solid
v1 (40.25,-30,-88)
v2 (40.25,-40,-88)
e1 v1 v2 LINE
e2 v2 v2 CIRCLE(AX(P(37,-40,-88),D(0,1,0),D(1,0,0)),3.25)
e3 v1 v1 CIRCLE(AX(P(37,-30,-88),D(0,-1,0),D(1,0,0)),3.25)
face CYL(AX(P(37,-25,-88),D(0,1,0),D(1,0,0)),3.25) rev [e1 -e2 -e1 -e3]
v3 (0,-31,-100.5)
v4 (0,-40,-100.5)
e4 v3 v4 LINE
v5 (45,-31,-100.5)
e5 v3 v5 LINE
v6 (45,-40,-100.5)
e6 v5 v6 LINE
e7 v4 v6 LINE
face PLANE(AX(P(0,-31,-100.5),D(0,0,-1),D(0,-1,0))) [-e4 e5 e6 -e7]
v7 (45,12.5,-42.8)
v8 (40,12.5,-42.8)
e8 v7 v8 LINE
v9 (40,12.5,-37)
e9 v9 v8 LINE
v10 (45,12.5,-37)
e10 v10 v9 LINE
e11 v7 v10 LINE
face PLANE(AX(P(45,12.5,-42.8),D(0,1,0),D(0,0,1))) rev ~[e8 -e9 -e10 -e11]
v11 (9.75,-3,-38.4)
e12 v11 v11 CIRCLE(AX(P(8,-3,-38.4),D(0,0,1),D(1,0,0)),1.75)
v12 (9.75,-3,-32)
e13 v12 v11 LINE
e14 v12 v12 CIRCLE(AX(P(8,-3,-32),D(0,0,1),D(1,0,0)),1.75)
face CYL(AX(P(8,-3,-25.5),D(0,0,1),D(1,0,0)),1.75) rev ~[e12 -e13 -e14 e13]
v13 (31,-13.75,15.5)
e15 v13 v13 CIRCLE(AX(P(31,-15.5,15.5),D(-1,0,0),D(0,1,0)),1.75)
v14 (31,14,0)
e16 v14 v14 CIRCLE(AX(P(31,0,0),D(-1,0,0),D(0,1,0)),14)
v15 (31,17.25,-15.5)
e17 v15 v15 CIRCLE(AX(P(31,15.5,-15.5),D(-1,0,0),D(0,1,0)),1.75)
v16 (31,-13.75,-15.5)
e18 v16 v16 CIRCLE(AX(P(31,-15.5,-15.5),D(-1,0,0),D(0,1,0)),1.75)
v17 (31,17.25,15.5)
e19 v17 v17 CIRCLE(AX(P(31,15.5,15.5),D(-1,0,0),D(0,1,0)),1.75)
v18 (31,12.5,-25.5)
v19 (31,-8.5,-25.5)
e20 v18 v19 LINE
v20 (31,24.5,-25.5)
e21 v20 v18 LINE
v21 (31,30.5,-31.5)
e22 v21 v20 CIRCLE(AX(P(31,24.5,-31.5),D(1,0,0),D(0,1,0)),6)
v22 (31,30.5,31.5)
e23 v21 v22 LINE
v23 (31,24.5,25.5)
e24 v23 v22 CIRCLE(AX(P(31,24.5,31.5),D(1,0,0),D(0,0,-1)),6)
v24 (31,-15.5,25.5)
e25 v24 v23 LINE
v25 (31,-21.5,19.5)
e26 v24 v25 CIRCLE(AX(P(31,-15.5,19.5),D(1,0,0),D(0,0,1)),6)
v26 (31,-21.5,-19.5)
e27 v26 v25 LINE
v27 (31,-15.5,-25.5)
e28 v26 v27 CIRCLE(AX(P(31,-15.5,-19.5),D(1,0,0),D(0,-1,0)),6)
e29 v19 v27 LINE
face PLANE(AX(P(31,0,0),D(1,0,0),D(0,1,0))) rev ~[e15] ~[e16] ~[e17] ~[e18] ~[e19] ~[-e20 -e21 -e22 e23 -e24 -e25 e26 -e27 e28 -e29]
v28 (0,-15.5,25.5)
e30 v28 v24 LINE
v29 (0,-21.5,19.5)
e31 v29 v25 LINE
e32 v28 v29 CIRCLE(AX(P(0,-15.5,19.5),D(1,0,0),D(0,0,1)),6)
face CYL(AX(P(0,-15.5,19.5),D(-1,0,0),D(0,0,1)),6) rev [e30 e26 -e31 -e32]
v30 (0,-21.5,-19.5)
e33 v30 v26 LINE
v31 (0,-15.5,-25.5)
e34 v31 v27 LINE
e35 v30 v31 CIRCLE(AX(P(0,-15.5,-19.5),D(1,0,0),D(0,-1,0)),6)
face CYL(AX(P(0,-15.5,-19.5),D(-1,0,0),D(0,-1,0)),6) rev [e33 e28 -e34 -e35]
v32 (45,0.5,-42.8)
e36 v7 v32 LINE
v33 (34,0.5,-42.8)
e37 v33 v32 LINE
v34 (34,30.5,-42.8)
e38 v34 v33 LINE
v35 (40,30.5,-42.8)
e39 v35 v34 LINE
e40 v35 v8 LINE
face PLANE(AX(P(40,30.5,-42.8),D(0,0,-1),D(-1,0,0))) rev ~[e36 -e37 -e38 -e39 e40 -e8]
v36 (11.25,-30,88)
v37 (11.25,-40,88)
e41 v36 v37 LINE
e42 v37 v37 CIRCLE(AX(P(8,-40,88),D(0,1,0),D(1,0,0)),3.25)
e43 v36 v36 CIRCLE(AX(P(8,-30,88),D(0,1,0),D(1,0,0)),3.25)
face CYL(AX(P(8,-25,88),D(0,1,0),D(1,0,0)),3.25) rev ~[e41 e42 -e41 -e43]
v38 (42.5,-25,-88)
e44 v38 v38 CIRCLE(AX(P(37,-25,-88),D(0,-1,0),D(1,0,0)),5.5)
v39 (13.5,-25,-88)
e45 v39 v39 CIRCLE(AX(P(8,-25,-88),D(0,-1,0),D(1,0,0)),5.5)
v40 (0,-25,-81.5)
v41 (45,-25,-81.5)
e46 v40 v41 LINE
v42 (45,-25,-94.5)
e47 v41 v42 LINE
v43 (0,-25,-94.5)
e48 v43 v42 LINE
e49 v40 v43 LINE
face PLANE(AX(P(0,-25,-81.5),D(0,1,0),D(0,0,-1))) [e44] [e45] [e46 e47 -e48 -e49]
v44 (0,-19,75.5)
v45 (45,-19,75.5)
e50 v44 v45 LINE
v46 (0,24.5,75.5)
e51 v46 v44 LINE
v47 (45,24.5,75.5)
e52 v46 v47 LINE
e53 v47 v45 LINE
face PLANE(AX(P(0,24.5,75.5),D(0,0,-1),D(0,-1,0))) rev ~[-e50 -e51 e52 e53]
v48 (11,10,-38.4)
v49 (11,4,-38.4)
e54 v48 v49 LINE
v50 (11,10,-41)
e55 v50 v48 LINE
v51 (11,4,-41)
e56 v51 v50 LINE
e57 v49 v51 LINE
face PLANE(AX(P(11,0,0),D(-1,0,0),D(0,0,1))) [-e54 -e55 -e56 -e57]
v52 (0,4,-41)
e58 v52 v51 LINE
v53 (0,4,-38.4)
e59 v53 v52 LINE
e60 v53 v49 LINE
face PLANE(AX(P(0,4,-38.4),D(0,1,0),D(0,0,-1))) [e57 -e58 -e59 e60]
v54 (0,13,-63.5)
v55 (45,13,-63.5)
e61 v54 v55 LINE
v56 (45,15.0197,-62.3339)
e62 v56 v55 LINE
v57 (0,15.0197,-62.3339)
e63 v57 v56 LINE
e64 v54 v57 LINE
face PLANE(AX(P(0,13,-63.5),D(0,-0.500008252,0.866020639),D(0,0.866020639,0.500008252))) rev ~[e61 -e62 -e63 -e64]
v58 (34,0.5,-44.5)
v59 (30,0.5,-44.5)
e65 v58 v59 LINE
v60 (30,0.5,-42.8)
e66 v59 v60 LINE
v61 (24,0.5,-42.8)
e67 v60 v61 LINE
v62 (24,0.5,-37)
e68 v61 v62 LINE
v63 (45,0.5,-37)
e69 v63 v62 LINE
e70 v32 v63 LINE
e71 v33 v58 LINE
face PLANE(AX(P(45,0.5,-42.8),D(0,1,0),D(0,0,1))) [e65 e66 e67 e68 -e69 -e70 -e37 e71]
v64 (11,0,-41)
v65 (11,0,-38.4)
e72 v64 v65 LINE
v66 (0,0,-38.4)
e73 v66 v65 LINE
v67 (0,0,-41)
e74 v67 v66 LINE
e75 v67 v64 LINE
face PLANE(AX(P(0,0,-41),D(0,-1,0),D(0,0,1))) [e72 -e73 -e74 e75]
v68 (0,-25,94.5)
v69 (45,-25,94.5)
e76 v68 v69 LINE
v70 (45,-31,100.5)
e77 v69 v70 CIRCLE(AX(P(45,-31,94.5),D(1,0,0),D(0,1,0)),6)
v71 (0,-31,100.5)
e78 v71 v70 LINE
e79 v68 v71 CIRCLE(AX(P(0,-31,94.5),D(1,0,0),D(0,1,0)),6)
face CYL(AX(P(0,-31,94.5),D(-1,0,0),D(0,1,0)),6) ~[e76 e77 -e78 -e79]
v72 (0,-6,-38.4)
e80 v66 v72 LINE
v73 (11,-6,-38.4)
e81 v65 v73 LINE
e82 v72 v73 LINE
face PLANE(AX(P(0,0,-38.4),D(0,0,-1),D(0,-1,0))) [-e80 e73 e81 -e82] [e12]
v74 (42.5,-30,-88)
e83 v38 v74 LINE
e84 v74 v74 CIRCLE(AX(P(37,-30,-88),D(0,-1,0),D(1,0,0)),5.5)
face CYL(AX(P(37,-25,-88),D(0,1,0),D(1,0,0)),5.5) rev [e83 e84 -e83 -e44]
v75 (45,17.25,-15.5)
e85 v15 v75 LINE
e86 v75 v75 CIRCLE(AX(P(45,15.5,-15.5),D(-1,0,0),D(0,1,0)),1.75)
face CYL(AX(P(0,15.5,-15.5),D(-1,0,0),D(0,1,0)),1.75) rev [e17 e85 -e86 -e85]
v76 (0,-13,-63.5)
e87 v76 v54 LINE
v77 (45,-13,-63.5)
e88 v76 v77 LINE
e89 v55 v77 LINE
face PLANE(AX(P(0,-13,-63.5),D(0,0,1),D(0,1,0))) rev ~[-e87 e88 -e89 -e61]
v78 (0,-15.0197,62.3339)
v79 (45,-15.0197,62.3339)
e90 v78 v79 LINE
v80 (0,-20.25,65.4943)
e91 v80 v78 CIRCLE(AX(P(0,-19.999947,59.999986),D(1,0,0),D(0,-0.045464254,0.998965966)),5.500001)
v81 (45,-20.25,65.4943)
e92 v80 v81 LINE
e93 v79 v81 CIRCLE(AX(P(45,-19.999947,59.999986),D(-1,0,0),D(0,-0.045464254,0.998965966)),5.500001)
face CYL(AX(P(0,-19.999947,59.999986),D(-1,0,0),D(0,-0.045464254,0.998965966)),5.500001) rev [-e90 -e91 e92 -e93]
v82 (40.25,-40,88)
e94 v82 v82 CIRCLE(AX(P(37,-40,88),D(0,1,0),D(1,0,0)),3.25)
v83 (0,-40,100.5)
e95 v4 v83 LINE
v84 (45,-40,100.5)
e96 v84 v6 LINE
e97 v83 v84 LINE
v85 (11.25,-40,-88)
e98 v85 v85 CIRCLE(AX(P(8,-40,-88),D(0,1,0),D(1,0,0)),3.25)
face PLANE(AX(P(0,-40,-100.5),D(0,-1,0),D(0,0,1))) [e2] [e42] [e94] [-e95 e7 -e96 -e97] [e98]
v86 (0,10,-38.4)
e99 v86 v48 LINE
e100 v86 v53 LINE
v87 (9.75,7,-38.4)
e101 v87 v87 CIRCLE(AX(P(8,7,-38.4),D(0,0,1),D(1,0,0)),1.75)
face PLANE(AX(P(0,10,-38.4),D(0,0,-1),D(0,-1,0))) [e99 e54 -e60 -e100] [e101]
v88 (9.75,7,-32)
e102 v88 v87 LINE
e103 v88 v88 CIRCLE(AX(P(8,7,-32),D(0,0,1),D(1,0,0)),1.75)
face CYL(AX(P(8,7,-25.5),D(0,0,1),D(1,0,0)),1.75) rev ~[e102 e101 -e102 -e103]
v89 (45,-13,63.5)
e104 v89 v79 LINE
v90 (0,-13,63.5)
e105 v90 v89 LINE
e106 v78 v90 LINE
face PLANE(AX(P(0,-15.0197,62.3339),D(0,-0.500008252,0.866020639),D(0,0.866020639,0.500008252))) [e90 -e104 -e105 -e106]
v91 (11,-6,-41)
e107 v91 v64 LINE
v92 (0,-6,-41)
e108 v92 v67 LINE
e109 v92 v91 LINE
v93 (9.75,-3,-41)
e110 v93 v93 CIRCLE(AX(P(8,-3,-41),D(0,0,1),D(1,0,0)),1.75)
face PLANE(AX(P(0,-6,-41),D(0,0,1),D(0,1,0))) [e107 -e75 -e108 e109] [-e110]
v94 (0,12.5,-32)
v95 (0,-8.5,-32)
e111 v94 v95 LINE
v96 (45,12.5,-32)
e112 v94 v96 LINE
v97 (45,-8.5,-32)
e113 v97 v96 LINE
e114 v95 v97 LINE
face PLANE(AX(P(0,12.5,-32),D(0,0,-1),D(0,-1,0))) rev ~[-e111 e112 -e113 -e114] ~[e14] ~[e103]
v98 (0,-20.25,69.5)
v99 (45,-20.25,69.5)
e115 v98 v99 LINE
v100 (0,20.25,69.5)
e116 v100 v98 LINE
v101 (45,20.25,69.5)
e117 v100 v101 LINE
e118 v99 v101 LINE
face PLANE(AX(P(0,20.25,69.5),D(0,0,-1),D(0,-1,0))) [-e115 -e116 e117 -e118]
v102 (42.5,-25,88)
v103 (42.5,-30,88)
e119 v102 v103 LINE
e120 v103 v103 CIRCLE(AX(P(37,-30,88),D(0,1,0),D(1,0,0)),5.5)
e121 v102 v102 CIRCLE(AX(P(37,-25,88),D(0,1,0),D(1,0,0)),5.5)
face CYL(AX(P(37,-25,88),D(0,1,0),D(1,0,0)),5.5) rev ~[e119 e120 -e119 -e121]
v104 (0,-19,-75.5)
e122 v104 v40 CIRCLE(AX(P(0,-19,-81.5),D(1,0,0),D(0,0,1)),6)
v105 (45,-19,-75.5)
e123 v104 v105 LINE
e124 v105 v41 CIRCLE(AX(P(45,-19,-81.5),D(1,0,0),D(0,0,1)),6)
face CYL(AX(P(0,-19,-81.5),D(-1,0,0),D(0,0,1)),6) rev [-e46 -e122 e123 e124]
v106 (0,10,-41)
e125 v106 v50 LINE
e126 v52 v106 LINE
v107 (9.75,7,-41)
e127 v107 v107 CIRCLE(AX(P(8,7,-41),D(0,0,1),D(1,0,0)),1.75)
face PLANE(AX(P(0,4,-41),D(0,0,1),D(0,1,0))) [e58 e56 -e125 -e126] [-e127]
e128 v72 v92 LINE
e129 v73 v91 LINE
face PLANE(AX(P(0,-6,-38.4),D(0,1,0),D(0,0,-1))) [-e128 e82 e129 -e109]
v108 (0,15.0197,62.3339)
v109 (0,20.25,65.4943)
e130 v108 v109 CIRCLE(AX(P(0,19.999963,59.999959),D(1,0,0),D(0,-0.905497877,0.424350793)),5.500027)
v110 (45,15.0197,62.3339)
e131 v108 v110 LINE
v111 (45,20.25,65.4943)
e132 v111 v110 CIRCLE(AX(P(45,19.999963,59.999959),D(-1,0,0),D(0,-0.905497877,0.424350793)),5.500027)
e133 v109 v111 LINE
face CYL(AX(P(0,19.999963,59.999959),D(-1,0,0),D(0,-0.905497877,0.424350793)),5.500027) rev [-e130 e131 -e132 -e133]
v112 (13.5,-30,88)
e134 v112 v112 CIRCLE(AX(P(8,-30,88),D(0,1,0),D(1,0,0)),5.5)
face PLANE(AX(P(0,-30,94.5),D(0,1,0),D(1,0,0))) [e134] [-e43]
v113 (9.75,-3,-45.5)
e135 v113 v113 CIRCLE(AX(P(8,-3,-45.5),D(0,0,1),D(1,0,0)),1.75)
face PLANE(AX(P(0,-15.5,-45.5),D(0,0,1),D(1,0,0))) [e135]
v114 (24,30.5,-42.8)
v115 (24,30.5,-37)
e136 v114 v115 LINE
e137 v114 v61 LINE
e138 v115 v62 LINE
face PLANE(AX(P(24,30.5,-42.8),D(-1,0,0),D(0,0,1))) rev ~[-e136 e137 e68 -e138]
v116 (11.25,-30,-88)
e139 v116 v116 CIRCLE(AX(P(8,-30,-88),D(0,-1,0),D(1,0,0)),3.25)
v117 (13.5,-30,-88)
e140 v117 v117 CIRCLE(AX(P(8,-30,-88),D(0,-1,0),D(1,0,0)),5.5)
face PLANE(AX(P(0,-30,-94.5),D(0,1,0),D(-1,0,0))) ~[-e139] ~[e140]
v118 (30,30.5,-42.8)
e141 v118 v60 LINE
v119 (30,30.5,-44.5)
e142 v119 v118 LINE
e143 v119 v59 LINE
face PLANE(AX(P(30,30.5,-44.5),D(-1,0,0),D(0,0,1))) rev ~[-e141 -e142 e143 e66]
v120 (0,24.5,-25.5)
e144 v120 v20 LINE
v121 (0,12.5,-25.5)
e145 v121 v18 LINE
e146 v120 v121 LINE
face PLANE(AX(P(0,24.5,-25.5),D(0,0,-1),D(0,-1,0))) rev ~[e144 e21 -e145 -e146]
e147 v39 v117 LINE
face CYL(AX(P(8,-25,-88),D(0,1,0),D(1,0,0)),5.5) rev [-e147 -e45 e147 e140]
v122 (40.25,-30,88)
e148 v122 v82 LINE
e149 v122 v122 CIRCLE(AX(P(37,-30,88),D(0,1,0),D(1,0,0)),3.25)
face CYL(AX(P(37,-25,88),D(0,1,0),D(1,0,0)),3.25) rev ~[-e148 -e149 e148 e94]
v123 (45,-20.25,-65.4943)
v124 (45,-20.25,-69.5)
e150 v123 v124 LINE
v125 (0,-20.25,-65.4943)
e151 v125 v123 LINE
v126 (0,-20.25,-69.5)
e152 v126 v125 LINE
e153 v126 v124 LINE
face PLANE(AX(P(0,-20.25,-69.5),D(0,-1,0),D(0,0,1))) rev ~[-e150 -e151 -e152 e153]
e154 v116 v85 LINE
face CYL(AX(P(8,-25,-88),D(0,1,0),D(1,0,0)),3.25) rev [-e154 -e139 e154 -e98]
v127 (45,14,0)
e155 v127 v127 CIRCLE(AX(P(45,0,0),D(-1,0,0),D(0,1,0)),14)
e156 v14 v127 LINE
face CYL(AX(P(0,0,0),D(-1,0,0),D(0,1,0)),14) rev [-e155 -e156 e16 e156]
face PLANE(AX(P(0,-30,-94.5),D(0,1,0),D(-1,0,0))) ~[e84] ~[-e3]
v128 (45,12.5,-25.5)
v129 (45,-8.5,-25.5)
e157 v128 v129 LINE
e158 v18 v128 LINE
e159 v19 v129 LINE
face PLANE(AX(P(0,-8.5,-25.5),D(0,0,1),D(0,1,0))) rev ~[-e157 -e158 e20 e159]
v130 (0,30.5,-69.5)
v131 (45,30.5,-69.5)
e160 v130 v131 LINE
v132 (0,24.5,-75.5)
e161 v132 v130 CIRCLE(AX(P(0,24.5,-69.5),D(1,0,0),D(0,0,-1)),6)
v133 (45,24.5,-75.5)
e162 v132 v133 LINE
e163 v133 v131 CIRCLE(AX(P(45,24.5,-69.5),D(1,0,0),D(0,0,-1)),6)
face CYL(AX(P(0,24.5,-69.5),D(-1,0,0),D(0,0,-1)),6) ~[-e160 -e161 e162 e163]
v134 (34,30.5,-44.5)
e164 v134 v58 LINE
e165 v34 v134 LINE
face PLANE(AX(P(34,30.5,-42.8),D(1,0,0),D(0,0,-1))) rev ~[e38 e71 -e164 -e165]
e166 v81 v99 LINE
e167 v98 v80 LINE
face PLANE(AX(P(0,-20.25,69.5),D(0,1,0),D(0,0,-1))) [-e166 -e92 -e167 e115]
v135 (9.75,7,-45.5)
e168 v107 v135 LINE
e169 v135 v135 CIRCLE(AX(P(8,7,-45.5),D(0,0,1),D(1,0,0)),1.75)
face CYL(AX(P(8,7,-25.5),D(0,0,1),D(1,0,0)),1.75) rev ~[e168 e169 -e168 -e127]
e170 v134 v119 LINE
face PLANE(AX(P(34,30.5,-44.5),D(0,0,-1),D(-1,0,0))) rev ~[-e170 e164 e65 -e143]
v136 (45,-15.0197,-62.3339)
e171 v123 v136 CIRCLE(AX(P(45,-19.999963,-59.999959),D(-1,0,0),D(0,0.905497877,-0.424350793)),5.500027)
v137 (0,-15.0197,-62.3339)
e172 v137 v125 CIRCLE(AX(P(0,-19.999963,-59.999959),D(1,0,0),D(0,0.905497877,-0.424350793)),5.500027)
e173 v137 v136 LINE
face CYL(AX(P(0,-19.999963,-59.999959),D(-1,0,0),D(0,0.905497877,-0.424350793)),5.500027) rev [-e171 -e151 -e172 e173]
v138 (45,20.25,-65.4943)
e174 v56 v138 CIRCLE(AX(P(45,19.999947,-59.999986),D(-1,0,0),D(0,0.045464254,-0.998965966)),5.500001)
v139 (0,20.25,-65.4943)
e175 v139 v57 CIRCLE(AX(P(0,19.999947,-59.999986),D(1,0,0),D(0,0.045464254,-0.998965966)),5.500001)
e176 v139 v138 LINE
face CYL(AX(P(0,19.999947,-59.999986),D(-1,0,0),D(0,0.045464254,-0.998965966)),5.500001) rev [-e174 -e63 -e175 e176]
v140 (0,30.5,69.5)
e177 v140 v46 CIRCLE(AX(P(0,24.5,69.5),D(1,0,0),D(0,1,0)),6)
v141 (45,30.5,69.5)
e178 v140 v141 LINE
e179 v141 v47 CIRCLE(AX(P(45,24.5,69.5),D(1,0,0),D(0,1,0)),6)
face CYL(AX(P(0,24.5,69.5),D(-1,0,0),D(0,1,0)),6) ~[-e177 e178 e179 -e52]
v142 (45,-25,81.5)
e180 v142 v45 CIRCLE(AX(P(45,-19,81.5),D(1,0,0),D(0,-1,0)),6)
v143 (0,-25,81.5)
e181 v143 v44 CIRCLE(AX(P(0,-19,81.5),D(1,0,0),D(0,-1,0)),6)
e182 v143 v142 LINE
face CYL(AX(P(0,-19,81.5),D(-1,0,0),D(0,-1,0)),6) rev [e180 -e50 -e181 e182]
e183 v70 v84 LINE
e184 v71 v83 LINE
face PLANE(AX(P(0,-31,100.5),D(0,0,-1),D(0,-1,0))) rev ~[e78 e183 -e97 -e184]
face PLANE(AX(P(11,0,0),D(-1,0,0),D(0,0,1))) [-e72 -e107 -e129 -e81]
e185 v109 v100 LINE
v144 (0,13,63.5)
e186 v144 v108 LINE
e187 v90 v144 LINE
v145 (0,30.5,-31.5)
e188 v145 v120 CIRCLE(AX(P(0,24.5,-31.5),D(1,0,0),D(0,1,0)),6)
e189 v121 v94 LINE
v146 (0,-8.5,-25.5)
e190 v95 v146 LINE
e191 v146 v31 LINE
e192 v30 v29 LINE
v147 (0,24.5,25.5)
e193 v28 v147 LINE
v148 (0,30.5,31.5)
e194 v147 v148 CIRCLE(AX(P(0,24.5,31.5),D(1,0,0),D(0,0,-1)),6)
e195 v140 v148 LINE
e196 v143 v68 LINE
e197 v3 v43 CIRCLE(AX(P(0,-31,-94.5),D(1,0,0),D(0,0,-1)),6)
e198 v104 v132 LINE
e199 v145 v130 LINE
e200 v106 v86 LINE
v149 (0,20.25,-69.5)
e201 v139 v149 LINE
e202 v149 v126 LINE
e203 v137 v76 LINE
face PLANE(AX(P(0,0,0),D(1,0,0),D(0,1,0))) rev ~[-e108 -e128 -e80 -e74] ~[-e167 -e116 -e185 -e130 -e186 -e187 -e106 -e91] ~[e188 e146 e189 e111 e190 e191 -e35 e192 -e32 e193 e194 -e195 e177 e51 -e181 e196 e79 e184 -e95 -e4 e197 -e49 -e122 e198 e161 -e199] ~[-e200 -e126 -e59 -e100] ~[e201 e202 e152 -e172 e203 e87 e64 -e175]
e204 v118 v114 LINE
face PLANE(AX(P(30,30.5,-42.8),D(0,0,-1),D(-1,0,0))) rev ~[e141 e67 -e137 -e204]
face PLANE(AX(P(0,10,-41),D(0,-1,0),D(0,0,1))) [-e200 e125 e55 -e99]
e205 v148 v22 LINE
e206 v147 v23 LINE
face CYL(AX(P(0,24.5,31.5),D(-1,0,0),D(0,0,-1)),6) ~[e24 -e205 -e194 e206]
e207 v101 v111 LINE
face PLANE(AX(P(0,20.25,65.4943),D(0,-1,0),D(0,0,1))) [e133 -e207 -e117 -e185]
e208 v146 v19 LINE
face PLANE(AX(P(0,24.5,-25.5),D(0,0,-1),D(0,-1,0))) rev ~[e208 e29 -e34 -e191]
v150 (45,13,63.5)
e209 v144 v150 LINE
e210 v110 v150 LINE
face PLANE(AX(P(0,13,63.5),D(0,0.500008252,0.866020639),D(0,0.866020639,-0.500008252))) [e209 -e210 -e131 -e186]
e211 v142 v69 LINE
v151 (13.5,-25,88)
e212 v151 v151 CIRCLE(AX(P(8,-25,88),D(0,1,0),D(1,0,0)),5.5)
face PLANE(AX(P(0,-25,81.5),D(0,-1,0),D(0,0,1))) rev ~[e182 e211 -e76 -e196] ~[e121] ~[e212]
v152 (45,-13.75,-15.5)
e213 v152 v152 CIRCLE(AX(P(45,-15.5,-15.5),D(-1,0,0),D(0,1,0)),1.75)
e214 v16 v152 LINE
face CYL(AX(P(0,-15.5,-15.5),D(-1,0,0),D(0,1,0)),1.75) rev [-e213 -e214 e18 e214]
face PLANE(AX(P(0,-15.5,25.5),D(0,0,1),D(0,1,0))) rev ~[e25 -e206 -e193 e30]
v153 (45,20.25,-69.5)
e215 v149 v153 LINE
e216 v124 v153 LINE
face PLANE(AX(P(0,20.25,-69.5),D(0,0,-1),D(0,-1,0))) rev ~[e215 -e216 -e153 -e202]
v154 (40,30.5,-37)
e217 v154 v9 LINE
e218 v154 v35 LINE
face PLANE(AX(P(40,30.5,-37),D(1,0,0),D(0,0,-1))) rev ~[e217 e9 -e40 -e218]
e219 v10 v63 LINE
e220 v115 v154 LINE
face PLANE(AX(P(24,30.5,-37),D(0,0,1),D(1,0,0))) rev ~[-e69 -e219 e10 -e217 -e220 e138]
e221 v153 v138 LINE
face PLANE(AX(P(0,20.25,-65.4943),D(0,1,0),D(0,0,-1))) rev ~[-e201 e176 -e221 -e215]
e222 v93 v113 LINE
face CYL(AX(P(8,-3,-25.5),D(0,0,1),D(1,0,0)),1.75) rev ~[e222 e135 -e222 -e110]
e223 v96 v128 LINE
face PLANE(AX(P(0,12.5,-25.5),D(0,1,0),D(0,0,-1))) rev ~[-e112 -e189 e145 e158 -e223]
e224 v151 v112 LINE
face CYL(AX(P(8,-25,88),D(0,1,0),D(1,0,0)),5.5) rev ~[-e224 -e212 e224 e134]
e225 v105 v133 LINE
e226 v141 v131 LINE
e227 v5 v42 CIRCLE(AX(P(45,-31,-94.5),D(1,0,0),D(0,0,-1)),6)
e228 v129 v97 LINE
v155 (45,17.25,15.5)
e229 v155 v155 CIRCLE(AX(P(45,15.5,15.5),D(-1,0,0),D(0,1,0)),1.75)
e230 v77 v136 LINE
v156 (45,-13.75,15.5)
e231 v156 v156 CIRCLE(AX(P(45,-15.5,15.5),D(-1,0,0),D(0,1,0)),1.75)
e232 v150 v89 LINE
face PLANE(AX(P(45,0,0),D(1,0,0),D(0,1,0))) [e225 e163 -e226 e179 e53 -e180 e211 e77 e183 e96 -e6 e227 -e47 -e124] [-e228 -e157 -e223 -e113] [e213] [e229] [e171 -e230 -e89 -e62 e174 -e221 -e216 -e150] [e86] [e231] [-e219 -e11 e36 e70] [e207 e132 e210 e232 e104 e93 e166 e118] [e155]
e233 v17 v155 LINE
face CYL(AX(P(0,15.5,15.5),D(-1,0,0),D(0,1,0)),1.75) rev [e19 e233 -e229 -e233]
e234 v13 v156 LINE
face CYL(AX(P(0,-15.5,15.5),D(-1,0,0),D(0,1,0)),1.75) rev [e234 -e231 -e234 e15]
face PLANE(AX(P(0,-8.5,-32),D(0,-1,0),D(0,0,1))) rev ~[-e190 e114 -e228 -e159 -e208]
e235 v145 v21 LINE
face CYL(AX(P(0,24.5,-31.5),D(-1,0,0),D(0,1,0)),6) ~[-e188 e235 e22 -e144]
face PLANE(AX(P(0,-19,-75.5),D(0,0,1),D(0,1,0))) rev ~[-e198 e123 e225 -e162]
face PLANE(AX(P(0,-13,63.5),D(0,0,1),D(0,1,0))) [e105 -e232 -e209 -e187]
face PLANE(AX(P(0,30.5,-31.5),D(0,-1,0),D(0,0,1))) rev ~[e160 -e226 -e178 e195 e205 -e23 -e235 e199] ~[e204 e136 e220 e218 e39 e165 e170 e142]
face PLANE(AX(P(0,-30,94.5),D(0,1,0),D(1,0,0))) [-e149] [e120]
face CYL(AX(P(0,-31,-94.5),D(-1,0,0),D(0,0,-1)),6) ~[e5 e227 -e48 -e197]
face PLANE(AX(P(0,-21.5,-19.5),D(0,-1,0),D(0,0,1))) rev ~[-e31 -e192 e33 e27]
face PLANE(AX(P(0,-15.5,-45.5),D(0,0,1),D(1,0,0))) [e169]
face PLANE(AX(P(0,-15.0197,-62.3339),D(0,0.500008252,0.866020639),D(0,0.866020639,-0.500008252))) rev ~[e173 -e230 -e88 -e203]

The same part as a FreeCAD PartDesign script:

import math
import FreeCAD as App
import Part
import Sketcher
from FreeCAD import Vector
Q = App.Units.Quantity


def add_polygon(sketch, points):
    """Adds a closed chain of lines whose ends are joined by coincident constraints."""
    first, n = sketch.GeometryCount, len(points)
    for a, b in zip(points, points[1:] + points[:1]):
        sketch.addGeometry(Part.LineSegment(App.Vector(*a, 0), App.Vector(*b, 0)), False)
    for i in range(n):
        sketch.addConstraint(Sketcher.Constraint("Coincident", first + i, 2, first + (i + 1) % n, 1))

doc = App.newDocument("Part")
body = doc.addObject("PartDesign::Body", "Body")

# Sketch on YZ plane
sketch1 = body.newObject("Sketcher::SketchObject", "Sketch")
sketch1.AttachmentSupport = (doc.getObject("YZ_Plane"), [""])
sketch1.MapMode = "FlatFace"
sketch1.addGeometry([
    Part.ArcOfCircle(Part.Circle(Vector(24, 70, 0), Vector(0, 0, 1), 6), math.radians(0), math.radians(90)),  # 0
    Part.LineSegment(Vector(24, 76, 0), Vector(-19, 76, 0)),  # 1
    Part.ArcOfCircle(Part.Circle(Vector(-19, 82, 0), Vector(0, 0, 1), 6), math.radians(180), math.radians(270)),  # 2
    Part.LineSegment(Vector(-25, 82, 0), Vector(-25, 94, 0)),  # 3
    Part.ArcOfCircle(Part.Circle(Vector(-31, 94, 0), Vector(0, 0, 1), 6), math.radians(0), math.radians(90)),  # 4
    Part.LineSegment(Vector(-31, 100, 0), Vector(-40, 100, 0)),  # 5
    Part.LineSegment(Vector(-40, 100, 0), Vector(-40, -100, 0)),  # 6
    Part.LineSegment(Vector(-40, -100, 0), Vector(-31, -100, 0)),  # 7
    Part.ArcOfCircle(Part.Circle(Vector(-31, -94, 0), Vector(0, 0, 1), 6), math.radians(-90), math.radians(0)),  # 8
    Part.LineSegment(Vector(-25, -94, 0), Vector(-25, -82, 0)),  # 9
    Part.ArcOfCircle(Part.Circle(Vector(-19, -82, 0), Vector(0, 0, 1), 6), math.radians(90), math.radians(180)),  # 10
    Part.LineSegment(Vector(-19, -76, 0), Vector(24, -76, 0)),  # 11
    Part.ArcOfCircle(Part.Circle(Vector(24, -70, 0), Vector(0, 0, 1), 6), math.radians(-90), math.radians(0)),  # 12
    Part.LineSegment(Vector(30, -70, 0), Vector(30, 70, 0)),  # 13
], False)
sketch1.addConstraint([
    Sketcher.Constraint("Tangent", 0, 2, 1, 1),
    Sketcher.Constraint("Tangent", 1, 2, 2, 2),
    Sketcher.Constraint("Tangent", 2, 1, 3, 1),
    Sketcher.Constraint("Tangent", 3, 2, 4, 1),
    Sketcher.Constraint("Tangent", 4, 2, 5, 1),
    Sketcher.Constraint("Coincident", 5, 2, 6, 1),
    Sketcher.Constraint("Coincident", 6, 2, 7, 1),
    Sketcher.Constraint("Tangent", 7, 2, 8, 1),
    Sketcher.Constraint("Tangent", 8, 2, 9, 1),
    Sketcher.Constraint("Tangent", 9, 2, 10, 2),
    Sketcher.Constraint("Tangent", 10, 1, 11, 1),
    Sketcher.Constraint("Tangent", 11, 2, 12, 1),
    Sketcher.Constraint("Tangent", 12, 2, 13, 1),
    Sketcher.Constraint("Tangent", 13, 2, 0, 1),
    Sketcher.Constraint("Horizontal", 1),
    Sketcher.Constraint("Vertical", 3),
    Sketcher.Constraint("Horizontal", 5),
    Sketcher.Constraint("Vertical", 6),
    Sketcher.Constraint("Horizontal", 7),
    Sketcher.Constraint("Vertical", 9),
    Sketcher.Constraint("Horizontal", 11),
    Sketcher.Constraint("Vertical", 13),
    Sketcher.Constraint("Equal", 0, 2),
    Sketcher.Constraint("Equal", 2, 4),
    Sketcher.Constraint("Equal", 4, 8),
    Sketcher.Constraint("Equal", 8, 10),
    Sketcher.Constraint("Equal", 10, 12),
    Sketcher.Constraint("Symmetric", 4, 3, 8, 3, -1),
    Sketcher.Constraint("Equal", 3, 9),
    Sketcher.Constraint("Radius", 0, Q("6 mm")),
    Sketcher.Constraint("DistanceY", 3, 1, 3, 2, Q("13 mm")),
    Sketcher.Constraint("DistanceX", 4, 3, -1, 1, Q("31 mm")),
    Sketcher.Constraint("DistanceX", 5, 2, -1, 1, Q("40 mm")),
    Sketcher.Constraint("DistanceY", 6, 2, 6, 1, Q("201 mm")),
    Sketcher.Constraint("DistanceX", 1, 2, 1, 1, Q("43.5 mm")),
])
pad1 = body.newObject("PartDesign::Pad", "Pad")
pad1.Profile = sketch1
pad1.Length = 45

# Sketch on YZ plane
sketch2 = body.newObject("Sketcher::SketchObject", "Sketch001")
sketch2.AttachmentSupport = (doc.getObject("YZ_Plane"), [""])
sketch2.MapMode = "FlatFace"
sketch2.addGeometry([
    Part.LineSegment(Vector(30, -32, 0), Vector(30, 32, 0)),  # 0
    Part.ArcOfCircle(Part.Circle(Vector(24, 32, 0), Vector(0, 0, 1), 6), math.radians(-90), math.radians(0)),  # 1
    Part.LineSegment(Vector(24, 26, 0), Vector(-16, 26, 0)),  # 2
    Part.ArcOfCircle(Part.Circle(Vector(-16, 20, 0), Vector(0, 0, 1), 6), math.radians(90), math.radians(180)),  # 3
    Part.LineSegment(Vector(-22, 20, 0), Vector(-22, -20, 0)),  # 4
    Part.ArcOfCircle(Part.Circle(Vector(-16, -20, 0), Vector(0, 0, 1), 6), math.radians(180), math.radians(270)),  # 5
    Part.LineSegment(Vector(-16, -26, 0), Vector(24, -26, 0)),  # 6
    Part.ArcOfCircle(Part.Circle(Vector(24, -32, 0), Vector(0, 0, 1), 6), math.radians(0), math.radians(90)),  # 7
], False)
sketch2.addConstraint([
    Sketcher.Constraint("Tangent", 0, 2, 1, 2),
    Sketcher.Constraint("Tangent", 1, 1, 2, 1),
    Sketcher.Constraint("Tangent", 2, 2, 3, 1),
    Sketcher.Constraint("Tangent", 3, 2, 4, 1),
    Sketcher.Constraint("Tangent", 4, 2, 5, 1),
    Sketcher.Constraint("Tangent", 5, 2, 6, 1),
    Sketcher.Constraint("Tangent", 6, 2, 7, 2),
    Sketcher.Constraint("Tangent", 7, 1, 0, 1),
    Sketcher.Constraint("Vertical", 0),
    Sketcher.Constraint("Horizontal", 2),
    Sketcher.Constraint("Vertical", 4),
    Sketcher.Constraint("Horizontal", 6),
    Sketcher.Constraint("Equal", 1, 3),
    Sketcher.Constraint("Equal", 3, 5),
    Sketcher.Constraint("Equal", 5, 7),
    Sketcher.Constraint("Radius", 1, Q("6 mm")),
    Sketcher.Constraint("DistanceX", 2, 2, 2, 1, Q("40 mm")),
    Sketcher.Constraint("DistanceY", 0, 1, 0, 2, Q("63 mm")),
    Sketcher.Constraint("DistanceX", -1, 1, 1, 3, Q("24.5 mm")),
    Sketcher.Constraint("DistanceY", -1, 1, 1, 3, Q("31.5 mm")),
])
pocket1 = body.newObject("PartDesign::Pocket", "Pocket")
pocket1.Profile = sketch2
pocket1.Length = 31
pocket1.Reversed = True

# Sketch on YZ plane
sketch3 = body.newObject("Sketcher::SketchObject", "Sketch002")
sketch3.AttachmentSupport = (doc.getObject("YZ_Plane"), [""])
sketch3.MapMode = "FlatFace"
sketch3.addGeometry([
    Part.LineSegment(Vector(-20.2, 69.5, 0), Vector(-20.2, 65.5, 0)),  # 0
    Part.ArcOfCircle(Part.Circle(Vector(-20, 60, 0), Vector(0, 0, 1), 5.5), math.radians(93), math.radians(385)),  # 1
    Part.LineSegment(Vector(-15, 62.3, 0), Vector(-13, 63.5, 0)),  # 2
    Part.LineSegment(Vector(-13, 63.5, 0), Vector(13, 63.5, 0)),  # 3
    Part.LineSegment(Vector(13, 63.5, 0), Vector(15, 62.3, 0)),  # 4
    Part.ArcOfCircle(Part.Circle(Vector(20, 60, 0), Vector(0, 0, 1), 5.5), math.radians(155), math.radians(447)),  # 5
    Part.LineSegment(Vector(20.2, 65.5, 0), Vector(20.2, 69.5, 0)),  # 6
    Part.LineSegment(Vector(20.2, 69.5, 0), Vector(-20.2, 69.5, 0)),  # 7
    Part.LineSegment(Vector(-13, -63.5, 0), Vector(-15, -62.3, 0)),  # 8
    Part.ArcOfCircle(Part.Circle(Vector(-20, -60, 0), Vector(0, 0, 1), 5.5), math.radians(-25), math.radians(267)),  # 9
    Part.LineSegment(Vector(-20.2, -65.5, 0), Vector(-20.2, -69.5, 0)),  # 10
    Part.LineSegment(Vector(-20.2, -69.5, 0), Vector(20.2, -69.5, 0)),  # 11
    Part.LineSegment(Vector(20.2, -69.5, 0), Vector(20.2, -65.5, 0)),  # 12
    Part.ArcOfCircle(Part.Circle(Vector(20, -60, 0), Vector(0, 0, 1), 5.5), math.radians(-87), math.radians(205)),  # 13
    Part.LineSegment(Vector(15, -62.3, 0), Vector(13, -63.5, 0)),  # 14
    Part.LineSegment(Vector(13, -63.5, 0), Vector(-13, -63.5, 0)),  # 15
], False)
sketch3.addConstraint([
    Sketcher.Constraint("Coincident", 0, 2, 1, 1),
    Sketcher.Constraint("Coincident", 1, 2, 2, 1),
    Sketcher.Constraint("Coincident", 2, 2, 3, 1),
    Sketcher.Constraint("Coincident", 3, 2, 4, 1),
    Sketcher.Constraint("Coincident", 4, 2, 5, 1),
    Sketcher.Constraint("Coincident", 5, 2, 6, 1),
    Sketcher.Constraint("Coincident", 6, 2, 7, 1),
    Sketcher.Constraint("Coincident", 7, 2, 0, 1),
    Sketcher.Constraint("Coincident", 8, 2, 9, 1),
    Sketcher.Constraint("Coincident", 9, 2, 10, 1),
    Sketcher.Constraint("Coincident", 10, 2, 11, 1),
    Sketcher.Constraint("Coincident", 11, 2, 12, 1),
    Sketcher.Constraint("Coincident", 12, 2, 13, 1),
    Sketcher.Constraint("Coincident", 13, 2, 14, 1),
    Sketcher.Constraint("Coincident", 14, 2, 15, 1),
    Sketcher.Constraint("Coincident", 15, 2, 8, 1),
    Sketcher.Constraint("Vertical", 0),
    Sketcher.Constraint("Horizontal", 3),
    Sketcher.Constraint("Vertical", 6),
    Sketcher.Constraint("Horizontal", 7),
    Sketcher.Constraint("Vertical", 10),
    Sketcher.Constraint("Horizontal", 11),
    Sketcher.Constraint("Vertical", 12),
    Sketcher.Constraint("Horizontal", 15),
    Sketcher.Constraint("Equal", 1, 5),
    Sketcher.Constraint("Equal", 5, 9),
    Sketcher.Constraint("Equal", 9, 13),
    Sketcher.Constraint("Symmetric", 5, 3, 9, 3, -1, 1),
    Sketcher.Constraint("Symmetric", 1, 3, 13, 3, -1, 1),
    Sketcher.Constraint("Symmetric", 6, 2, 10, 2, -1, 1),
    Sketcher.Constraint("Symmetric", 2, 2, 14, 2, -1, 1),
    Sketcher.Constraint("Symmetric", 1, 3, 5, 3, -2),
    Sketcher.Constraint("Parallel", 4, 8),
    Sketcher.Constraint("Parallel", 2, 14),
    Sketcher.Constraint("Horizontal", 1, 2, 4, 2),
    Sketcher.Constraint("Horizontal", 0, 2, 5, 2),
    Sketcher.Constraint("Horizontal", 9, 2, 12, 2),
    Sketcher.Constraint("Horizontal", 8, 2, 13, 2),
    Sketcher.Constraint("Vertical", 3, 2, 14, 2),
    Sketcher.Constraint("Radius", 1, Q("5.5 mm")),
    Sketcher.Constraint("DistanceX", 3, 1, 3, 2, Q("26 mm")),
    Sketcher.Constraint("Angle", 8, Q("149.9995 deg")),
    Sketcher.Constraint("DistanceX", 1, 3, -1, 1, Q("20 mm")),
    Sketcher.Constraint("DistanceY", -1, 1, 1, 3, Q("60 mm")),
    Sketcher.Constraint("DistanceY", 3, 2, 6, 2, Q("6 mm")),
    Sketcher.Constraint("DistanceY", 1, 3, 2, 2, Q("3.5 mm")),
    Sketcher.Constraint("DistanceX", 0, 2, 1, 3, Q("0.25 mm")),
])
pocket2 = body.newObject("PartDesign::Pocket", "Pocket001")
pocket2.Profile = sketch3
pocket2.Type = "ThroughAll"
pocket2.Reversed = True

# Sketch on YZ plane
sketch4 = body.newObject("Sketcher::SketchObject", "Sketch003")
sketch4.AttachmentSupport = (doc.getObject("YZ_Plane"), [""])
sketch4.MapMode = "FlatFace"
sketch4.addGeometry([
    Part.Circle(Vector(0, 0, 0), Vector(0, 0, 1), 14),  # 0
    Part.Circle(Vector(15.5, 15.5, 0), Vector(0, 0, 1), 1.8),  # 1
    Part.Circle(Vector(15.5, -15.5, 0), Vector(0, 0, 1), 1.8),  # 2
    Part.Circle(Vector(-15.5, 15.5, 0), Vector(0, 0, 1), 1.8),  # 3
    Part.Circle(Vector(-15.5, -15.5, 0), Vector(0, 0, 1), 1.8),  # 4
], False)
sketch4.addConstraint([
    Sketcher.Constraint("Coincident", 0, 3, -1, 1),
    Sketcher.Constraint("Equal", 1, 2),
    Sketcher.Constraint("Equal", 2, 3),
    Sketcher.Constraint("Equal", 3, 4),
    Sketcher.Constraint("Symmetric", 2, 3, 3, 3, -1, 1),
    Sketcher.Constraint("Symmetric", 1, 3, 4, 3, -1, 1),
    Sketcher.Constraint("Symmetric", 1, 3, 3, 3, -2),
    Sketcher.Constraint("Diameter", 0, Q("28 mm")),
    Sketcher.Constraint("Diameter", 1, Q("3.5 mm")),
    Sketcher.Constraint("DistanceY", 2, 3, 1, 3, Q("31 mm")),
    Sketcher.Constraint("DistanceX", 3, 3, 1, 3, Q("31 mm")),
])
pocket3 = body.newObject("PartDesign::Pocket", "Pocket002")
pocket3.Profile = sketch4
pocket3.Type = "ThroughAll"
pocket3.Reversed = True

# Sketch on XZ plane
sketch5 = body.newObject("Sketcher::SketchObject", "Sketch004")
sketch5.AttachmentSupport = (doc.getObject("XZ_Plane"), [""])
sketch5.MapMode = "FlatFace"
sketch5.AttachmentOffset = App.Placement(Vector(0, 0, 25), App.Rotation())
sketch5.addGeometry([
    Part.Circle(Vector(37, 88, 0), Vector(0, 0, 1), 3.2),
    Part.Circle(Vector(8, 88, 0), Vector(0, 0, 1), 3.2),
], False)
sketch5.addConstraint([
    Sketcher.Constraint("Equal", 0, 1),
    Sketcher.Constraint("Horizontal", 0, 3, 1, 3),
    Sketcher.Constraint("Diameter", 0, Q("6.5 mm")),
    Sketcher.Constraint("DistanceX", -1, 1, 1, 3, Q("8 mm")),
    Sketcher.Constraint("DistanceX", -1, 1, 0, 3, Q("37 mm")),
    Sketcher.Constraint("DistanceY", -1, 1, 0, 3, Q("88 mm")),
])
pocket4 = body.newObject("PartDesign::Pocket", "Pocket003")
pocket4.Profile = sketch5
pocket4.Type = "ThroughAll"
pocket4.Reversed = True

# Sketch on XZ plane
sketch6 = body.newObject("Sketcher::SketchObject", "Sketch005")
sketch6.AttachmentSupport = (doc.getObject("XZ_Plane"), [""])
sketch6.MapMode = "FlatFace"
sketch6.AttachmentOffset = App.Placement(Vector(0, 0, 25), App.Rotation())
sketch6.addGeometry([
    Part.Circle(Vector(37, 88, 0), Vector(0, 0, 1), 5.5),
    Part.Circle(Vector(37, 88, 0), Vector(0, 0, 1), 3.2),
    Part.Circle(Vector(8, 88, 0), Vector(0, 0, 1), 5.5),
    Part.Circle(Vector(8, 88, 0), Vector(0, 0, 1), 3.2),
], False)
sketch6.addConstraint([
    Sketcher.Constraint("Coincident", 1, 3, 0, 3),
    Sketcher.Constraint("Coincident", 3, 3, 2, 3),
    Sketcher.Constraint("Equal", 0, 2),
    Sketcher.Constraint("Equal", 1, 3),
    Sketcher.Constraint("Horizontal", 1, 3, 2, 3),
    Sketcher.Constraint("Diameter", 0, Q("11 mm")),
    Sketcher.Constraint("Diameter", 1, Q("6.5 mm")),
    Sketcher.Constraint("DistanceX", -1, 1, 2, 3, Q("8 mm")),
    Sketcher.Constraint("DistanceX", -1, 1, 0, 3, Q("37 mm")),
    Sketcher.Constraint("DistanceY", -1, 1, 0, 3, Q("88 mm")),
])
pocket5 = body.newObject("PartDesign::Pocket", "Pocket004")
pocket5.Profile = sketch6
pocket5.Length = 5
pocket5.Reversed = True
doc.recompute()

mirrored = body.newObject("PartDesign::Mirrored", "Mirrored")
mirrored.Originals = [pocket5, pocket4]
mirrored.MirrorPlane = (doc.getObject("XY_Plane"), [""])
body.Tip = mirrored

# Sketch on XY plane
sketch7 = body.newObject("Sketcher::SketchObject", "Sketch006")
sketch7.AttachmentSupport = (doc.getObject("XY_Plane"), [""])
sketch7.MapMode = "FlatFace"
sketch7.AttachmentOffset = App.Placement(Vector(0, 0, -25.5), App.Rotation())
sketch7.addGeometry([
    Part.Circle(Vector(8, 7, 0), Vector(0, 0, 1), 1.8),
    Part.Circle(Vector(8, -3, 0), Vector(0, 0, 1), 1.8),
], False)
sketch7.addConstraint([
    Sketcher.Constraint("Equal", 0, 1),
    Sketcher.Constraint("Vertical", 0, 3, 1, 3),
    Sketcher.Constraint("Diameter", 0, Q("3.5 mm")),
    Sketcher.Constraint("DistanceX", -1, 1, 0, 3, Q("8 mm")),
    Sketcher.Constraint("DistanceY", 1, 3, 0, 3, Q("10 mm")),
    Sketcher.Constraint("DistanceY", -1, 1, 0, 3, Q("7 mm")),
])
pocket6 = body.newObject("PartDesign::Pocket", "Pocket005")
pocket6.Profile = sketch7
pocket6.Length = 20

# Sketch on YZ plane
sketch8 = body.newObject("Sketcher::SketchObject", "Sketch007")
sketch8.AttachmentSupport = (doc.getObject("YZ_Plane"), [""])
sketch8.MapMode = "FlatFace"
add_polygon(sketch8, [(-8, -32), (-8, -26), (12, -26), (12, -32)])  # lines 0-3
sketch8.addConstraint([
    Sketcher.Constraint("Vertical", 0),
    Sketcher.Constraint("Horizontal", 1),
    Sketcher.Constraint("Vertical", 2),
    Sketcher.Constraint("Horizontal", 3),
    Sketcher.Constraint("DistanceX", 1, 1, 1, 2, Q("21 mm")),
    Sketcher.Constraint("DistanceY", 0, 1, 0, 2, Q("6.5 mm")),
    Sketcher.Constraint("DistanceY", 2, 2, -1, 1, Q("32 mm")),
    Sketcher.Constraint("DistanceX", 0, 2, -1, 1, Q("8.5 mm")),
])
pocket7 = body.newObject("PartDesign::Pocket", "Pocket006")
pocket7.Profile = sketch8
pocket7.Type = "ThroughAll"
pocket7.Reversed = True

# Sketch on YZ plane
sketch9 = body.newObject("Sketcher::SketchObject", "Sketch008")
sketch9.AttachmentSupport = (doc.getObject("YZ_Plane"), [""])
sketch9.MapMode = "FlatFace"
add_polygon(sketch9, [(10, -38.4), (10, -41), (4, -41), (4, -38.4)])  # lines 0-3
add_polygon(sketch9, [(0, -38.4), (0, -41), (-6, -41), (-6, -38.4)])  # lines 4-7
sketch9.addConstraint([
    Sketcher.Constraint("Vertical", 0),
    Sketcher.Constraint("Horizontal", 1),
    Sketcher.Constraint("Vertical", 2),
    Sketcher.Constraint("Horizontal", 3),
    Sketcher.Constraint("Vertical", 4),
    Sketcher.Constraint("Horizontal", 5),
    Sketcher.Constraint("Vertical", 6),
    Sketcher.Constraint("Horizontal", 7),
    Sketcher.Constraint("PointOnObject", 4, 2, -2),
    Sketcher.Constraint("Horizontal", 1, 2, 4, 2),
    Sketcher.Constraint("Horizontal", 3, 2, 6, 2),
    Sketcher.Constraint("Equal", 3, 5),
    Sketcher.Constraint("DistanceX", 1, 2, 1, 1, Q("6 mm")),
    Sketcher.Constraint("DistanceY", 0, 2, 0, 1, Q("2.6 mm")),
    Sketcher.Constraint("DistanceX", -1, 1, 0, 2, Q("10 mm")),
    Sketcher.Constraint("DistanceY", 0, 2, -1, 1, Q("41 mm")),
])
pocket8 = body.newObject("PartDesign::Pocket", "Pocket007")
pocket8.Profile = sketch9
pocket8.Length = 11
pocket8.Reversed = True

# Sketch on XZ plane
sketch10 = body.newObject("Sketcher::SketchObject", "Sketch009")
sketch10.AttachmentSupport = (doc.getObject("XZ_Plane"), [""])
sketch10.MapMode = "FlatFace"
sketch10.AttachmentOffset = App.Placement(Vector(0, 0, -30.5), App.Rotation())
add_polygon(sketch10, [(24, -42.8), (24, -37), (40, -37), (40, -42.8), (34, -42.8), (34, -44.5), (30, -44.5), (30, -42.8)])  # lines 0-7
sketch10.addConstraint([
    Sketcher.Constraint("Vertical", 0),
    Sketcher.Constraint("Horizontal", 1),
    Sketcher.Constraint("Vertical", 2),
    Sketcher.Constraint("Horizontal", 3),
    Sketcher.Constraint("Vertical", 4),
    Sketcher.Constraint("Horizontal", 5),
    Sketcher.Constraint("Vertical", 6),
    Sketcher.Constraint("Horizontal", 7),
    Sketcher.Constraint("Horizontal", 3, 2, 6, 2),
    Sketcher.Constraint("Equal", 3, 7),
    Sketcher.Constraint("DistanceX", 1, 1, 1, 2, Q("16 mm")),
    Sketcher.Constraint("DistanceX", 3, 2, 3, 1, Q("6 mm")),
    Sketcher.Constraint("DistanceY", 0, 1, 0, 2, Q("5.8 mm")),
    Sketcher.Constraint("DistanceY", 4, 2, 4, 1, Q("1.7 mm")),
    Sketcher.Constraint("DistanceX", -1, 1, 0, 2, Q("24 mm")),
    Sketcher.Constraint("DistanceY", 0, 2, -1, 1, Q("37 mm")),
])
pocket9 = body.newObject("PartDesign::Pocket", "Pocket008")
pocket9.Profile = sketch10
pocket9.Length = 30
pocket9.Reversed = True

# Sketch on YZ plane
sketch11 = body.newObject("Sketcher::SketchObject", "Sketch010")
sketch11.AttachmentSupport = (doc.getObject("YZ_Plane"), [""])
sketch11.MapMode = "FlatFace"
sketch11.AttachmentOffset = App.Placement(Vector(0, 0, 45), App.Rotation())
add_polygon(sketch11, [(0, -43), (12, -43), (12, -37), (0, -37)])  # lines 0-3
sketch11.addConstraint([
    Sketcher.Constraint("Horizontal", 0),
    Sketcher.Constraint("Vertical", 1),
    Sketcher.Constraint("Horizontal", 2),
    Sketcher.Constraint("Vertical", 3),
    Sketcher.Constraint("DistanceX", 0, 1, 0, 2, Q("12 mm")),
    Sketcher.Constraint("DistanceY", 1, 1, 1, 2, Q("5.8 mm")),
    Sketcher.Constraint("DistanceY", 1, 2, -1, 1, Q("37 mm")),
    Sketcher.Constraint("DistanceX", -1, 1, 0, 2, Q("12.5 mm")),
])
pocket10 = body.newObject("PartDesign::Pocket", "Pocket009")
pocket10.Profile = sketch11
pocket10.Type = "UpToFirst"

doc.recompute()
